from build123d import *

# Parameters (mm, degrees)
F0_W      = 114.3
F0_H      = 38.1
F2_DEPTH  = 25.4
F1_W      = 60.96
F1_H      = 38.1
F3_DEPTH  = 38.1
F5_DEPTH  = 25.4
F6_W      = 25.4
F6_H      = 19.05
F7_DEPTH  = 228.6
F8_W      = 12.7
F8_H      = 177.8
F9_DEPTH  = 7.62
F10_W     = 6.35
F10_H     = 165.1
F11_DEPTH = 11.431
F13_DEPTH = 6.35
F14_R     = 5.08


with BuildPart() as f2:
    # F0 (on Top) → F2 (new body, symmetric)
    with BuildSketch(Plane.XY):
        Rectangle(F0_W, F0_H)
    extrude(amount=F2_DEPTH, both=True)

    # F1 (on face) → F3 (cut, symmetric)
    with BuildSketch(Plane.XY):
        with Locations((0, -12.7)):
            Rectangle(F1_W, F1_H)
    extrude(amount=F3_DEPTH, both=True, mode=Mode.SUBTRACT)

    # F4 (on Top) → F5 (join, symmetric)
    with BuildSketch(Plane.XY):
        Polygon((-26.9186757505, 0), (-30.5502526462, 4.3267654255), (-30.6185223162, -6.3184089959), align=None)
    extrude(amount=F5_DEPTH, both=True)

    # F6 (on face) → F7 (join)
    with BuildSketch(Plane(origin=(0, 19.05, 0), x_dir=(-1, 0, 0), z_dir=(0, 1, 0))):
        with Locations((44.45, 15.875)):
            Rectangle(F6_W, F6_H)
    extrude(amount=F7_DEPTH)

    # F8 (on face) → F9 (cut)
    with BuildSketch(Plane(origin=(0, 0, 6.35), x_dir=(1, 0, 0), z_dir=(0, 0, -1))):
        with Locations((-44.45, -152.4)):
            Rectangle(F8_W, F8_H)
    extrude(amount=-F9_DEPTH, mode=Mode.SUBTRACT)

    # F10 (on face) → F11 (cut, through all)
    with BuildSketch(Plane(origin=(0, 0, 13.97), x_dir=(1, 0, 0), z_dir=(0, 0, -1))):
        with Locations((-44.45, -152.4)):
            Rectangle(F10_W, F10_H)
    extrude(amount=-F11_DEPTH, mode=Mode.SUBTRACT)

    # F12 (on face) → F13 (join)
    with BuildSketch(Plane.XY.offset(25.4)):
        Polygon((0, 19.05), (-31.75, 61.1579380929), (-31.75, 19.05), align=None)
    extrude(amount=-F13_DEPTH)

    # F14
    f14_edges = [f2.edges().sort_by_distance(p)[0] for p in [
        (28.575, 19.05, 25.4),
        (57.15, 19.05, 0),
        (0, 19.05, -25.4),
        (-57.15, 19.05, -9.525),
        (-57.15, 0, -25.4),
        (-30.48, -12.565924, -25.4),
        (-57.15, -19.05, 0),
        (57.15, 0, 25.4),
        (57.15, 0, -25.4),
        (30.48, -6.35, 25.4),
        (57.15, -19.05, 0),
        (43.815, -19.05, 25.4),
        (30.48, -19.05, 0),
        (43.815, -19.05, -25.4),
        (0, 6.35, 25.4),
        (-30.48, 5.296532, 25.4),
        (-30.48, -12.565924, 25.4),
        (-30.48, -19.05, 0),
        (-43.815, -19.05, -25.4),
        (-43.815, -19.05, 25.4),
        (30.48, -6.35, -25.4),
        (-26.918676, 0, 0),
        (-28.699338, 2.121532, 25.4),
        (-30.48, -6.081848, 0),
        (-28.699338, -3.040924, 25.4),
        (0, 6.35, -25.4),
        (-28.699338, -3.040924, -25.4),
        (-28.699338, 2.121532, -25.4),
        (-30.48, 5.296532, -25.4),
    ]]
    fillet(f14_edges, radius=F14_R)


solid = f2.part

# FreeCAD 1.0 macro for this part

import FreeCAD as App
import Part
import Sketcher
from FreeCAD import Vector
Q = App.Units.Quantity


def edges_at(feature, points):
    """Names of the edges that pass closest to the given points."""
    edges = feature.Shape.Edges
    near = lambda p: min(range(len(edges)), key=lambda i: edges[i].distToShape(Part.Vertex(*p))[0])
    return sorted({f"Edge{near(p) + 1}" for p in points})

doc = App.newDocument("Part")
body = doc.addObject("PartDesign::Body", "Body")

# Sketch on XY plane
sketch1 = doc.addObject("Sketcher::SketchObject", "Sketch")
body.addObject(sketch1)
sketch1.AttachmentSupport = (doc.XY_Plane, [""])
sketch1.MapMode = "FlatFace"
sketch1.addGeometry([
    Part.LineSegment(Vector(-57, 19, 0), Vector(-57, -19, 0)),
    Part.LineSegment(Vector(-57, -19, 0), Vector(57, -19, 0)),
    Part.LineSegment(Vector(57, -19, 0), Vector(57, 19, 0)),
    Part.LineSegment(Vector(57, 19, 0), Vector(-57, 19, 0)),
], False)
sketch1.addConstraint([
    Sketcher.Constraint("Coincident", 0, 2, 1, 1),
    Sketcher.Constraint("Coincident", 1, 2, 2, 1),
    Sketcher.Constraint("Coincident", 2, 2, 3, 1),
    Sketcher.Constraint("Coincident", 3, 2, 0, 1),
    Sketcher.Constraint("Vertical", 0),
    Sketcher.Constraint("Horizontal", 1),
    Sketcher.Constraint("Vertical", 2),
    Sketcher.Constraint("Horizontal", 3),
    Sketcher.Constraint("Symmetric", 0, 2, 2, 2, -1, 1),
    Sketcher.Constraint("DistanceX", 1, 1, 1, 2, Q("4.5 in")),
    Sketcher.Constraint("DistanceY", 0, 2, 0, 1, Q("1.5 in")),
])
pad1 = doc.addObject("PartDesign::Pad", "Pad")
body.addObject(pad1)
pad1.Profile = sketch1
pad1.Length = Q("2 in")
pad1.Midplane = True

# Sketch on XY plane
sketch2 = doc.addObject("Sketcher::SketchObject", "Sketch001")
body.addObject(sketch2)
sketch2.AttachmentSupport = (doc.XY_Plane, [""])
sketch2.MapMode = "FlatFace"
sketch2.addGeometry([
    Part.LineSegment(Vector(-30, 6, 0), Vector(-30, -32, 0)),
    Part.LineSegment(Vector(-30, -32, 0), Vector(30, -32, 0)),
    Part.LineSegment(Vector(30, -32, 0), Vector(30, 6, 0)),
    Part.LineSegment(Vector(30, 6, 0), Vector(-30, 6, 0)),
], False)
sketch2.addConstraint([
    Sketcher.Constraint("Coincident", 0, 2, 1, 1),
    Sketcher.Constraint("Coincident", 1, 2, 2, 1),
    Sketcher.Constraint("Coincident", 2, 2, 3, 1),
    Sketcher.Constraint("Coincident", 3, 2, 0, 1),
    Sketcher.Constraint("Vertical", 0),
    Sketcher.Constraint("Horizontal", 1),
    Sketcher.Constraint("Vertical", 2),
    Sketcher.Constraint("Horizontal", 3),
    Sketcher.Constraint("DistanceX", 1, 1, 1, 2, Q("2.4 in")),
    Sketcher.Constraint("DistanceY", 0, 2, 0, 1, Q("1.5 in")),
    Sketcher.Constraint("DistanceX", 0, 2, -1, 1, Q("1.2 in")),
    Sketcher.Constraint("DistanceY", 0, 2, -1, 1, Q("1.25 in")),
])
pocket1 = doc.addObject("PartDesign::Pocket", "Pocket")
body.addObject(pocket1)
pocket1.Profile = sketch2
pocket1.Length = Q("3 in")
pocket1.Midplane = True

# Sketch on XY plane
sketch3 = doc.addObject("Sketcher::SketchObject", "Sketch002")
body.addObject(sketch3)
sketch3.AttachmentSupport = (doc.XY_Plane, [""])
sketch3.MapMode = "FlatFace"
sketch3.addGeometry([
    Part.LineSegment(Vector(-27, 0, 0), Vector(-31, 4, 0)),
    Part.LineSegment(Vector(-31, 4, 0), Vector(-31, -6, 0)),
    Part.LineSegment(Vector(-31, -6, 0), Vector(-27, 0, 0)),
], False)
sketch3.addConstraint([
    Sketcher.Constraint("Coincident", 0, 2, 1, 1),
    Sketcher.Constraint("Coincident", 1, 2, 2, 1),
    Sketcher.Constraint("Coincident", 2, 2, 0, 1),
    Sketcher.Constraint("PointOnObject", 2, 2, -1),
    Sketcher.Constraint("DistanceY", 1, 2, -1, 1, Q("6.318409 mm")),
    Sketcher.Constraint("DistanceX", 1, 2, 0, 2, Q("0.06827 mm")),
    Sketcher.Constraint("Distance", 0, Q("5.648827 mm")),
    Sketcher.Constraint("Distance", 1, Q("10.645393 mm")),
    Sketcher.Constraint("DistanceX", 0, 2, -1, 1, Q("30.550253 mm")),
])
pad2 = doc.addObject("PartDesign::Pad", "Pad001")
body.addObject(pad2)
pad2.Profile = sketch3
pad2.Length = Q("2 in")
pad2.Midplane = True

# Sketch on XZ plane
sketch4 = doc.addObject("Sketcher::SketchObject", "Sketch003")
body.addObject(sketch4)
sketch4.AttachmentSupport = (doc.XZ_Plane, [""])
sketch4.MapMode = "FlatFace"
sketch4.AttachmentOffset = App.Placement(Vector(0, 0, -0.75 * 25.4), App.Rotation())
sketch4.addGeometry([
    Part.LineSegment(Vector(-32, 25, 0), Vector(-32, 6, 0)),
    Part.LineSegment(Vector(-32, 6, 0), Vector(-57, 6, 0)),
    Part.LineSegment(Vector(-57, 6, 0), Vector(-57, 25, 0)),
    Part.LineSegment(Vector(-57, 25, 0), Vector(-32, 25, 0)),
], False)
sketch4.addConstraint([
    Sketcher.Constraint("Coincident", 0, 2, 1, 1),
    Sketcher.Constraint("Coincident", 1, 2, 2, 1),
    Sketcher.Constraint("Coincident", 2, 2, 3, 1),
    Sketcher.Constraint("Coincident", 3, 2, 0, 1),
    Sketcher.Constraint("Vertical", 0),
    Sketcher.Constraint("Horizontal", 1),
    Sketcher.Constraint("Vertical", 2),
    Sketcher.Constraint("Horizontal", 3),
    Sketcher.Constraint("DistanceX", 1, 2, 1, 1, Q("1 in")),
    Sketcher.Constraint("DistanceY", -1, 1, 2, 2, Q("1 in")),
    Sketcher.Constraint("DistanceY", 0, 2, 0, 1, Q("0.75 in")),
    Sketcher.Constraint("DistanceX", 0, 2, -1, 1, Q("1.25 in")),
])
pad3 = doc.addObject("PartDesign::Pad", "Pad002")
body.addObject(pad3)
pad3.Profile = sketch4
pad3.Length = Q("9 in")
pad3.Reversed = True

# Sketch on XY plane
sketch5 = doc.addObject("Sketcher::SketchObject", "Sketch004")
body.addObject(sketch5)
sketch5.AttachmentSupport = (doc.XY_Plane, [""])
sketch5.MapMode = "FlatFace"
sketch5.AttachmentOffset = App.Placement(Vector(0, 0, 0.25 * 25.4), App.Rotation())
sketch5.addGeometry([
    Part.LineSegment(Vector(-51, 64, 0), Vector(-51, 241, 0)),
    Part.LineSegment(Vector(-51, 241, 0), Vector(-38, 241, 0)),
    Part.LineSegment(Vector(-38, 241, 0), Vector(-38, 64, 0)),
    Part.LineSegment(Vector(-38, 64, 0), Vector(-51, 64, 0)),
], False)
sketch5.addConstraint([
    Sketcher.Constraint("Coincident", 0, 2, 1, 1),
    Sketcher.Constraint("Coincident", 1, 2, 2, 1),
    Sketcher.Constraint("Coincident", 2, 2, 3, 1),
    Sketcher.Constraint("Coincident", 3, 2, 0, 1),
    Sketcher.Constraint("Vertical", 0),
    Sketcher.Constraint("Horizontal", 1),
    Sketcher.Constraint("Vertical", 2),
    Sketcher.Constraint("Horizontal", 3),
    Sketcher.Constraint("DistanceY", 0, 1, 0, 2, Q("7 in")),
    Sketcher.Constraint("DistanceX", 1, 1, 1, 2, Q("0.5 in")),
    Sketcher.Constraint("DistanceX", 0, 2, -1, 1, Q("2 in")),
    Sketcher.Constraint("DistanceY", -1, 1, 0, 2, Q("9.5 in")),
])
pocket2 = doc.addObject("PartDesign::Pocket", "Pocket001")
body.addObject(pocket2)
pocket2.Profile = sketch5
pocket2.Length = Q("0.3 in")
pocket2.Reversed = True

# Sketch on XY plane
sketch6 = doc.addObject("Sketcher::SketchObject", "Sketch005")
body.addObject(sketch6)
sketch6.AttachmentSupport = (doc.XY_Plane, [""])
sketch6.MapMode = "FlatFace"
sketch6.AttachmentOffset = App.Placement(Vector(0, 0, 0.55 * 25.4), App.Rotation())
sketch6.addGeometry([
    Part.LineSegment(Vector(-48, 70, 0), Vector(-48, 235, 0)),
    Part.LineSegment(Vector(-48, 235, 0), Vector(-41, 235, 0)),
    Part.LineSegment(Vector(-41, 235, 0), Vector(-41, 70, 0)),
    Part.LineSegment(Vector(-41, 70, 0), Vector(-48, 70, 0)),
], False)
sketch6.addConstraint([
    Sketcher.Constraint("Coincident", 0, 2, 1, 1),
    Sketcher.Constraint("Coincident", 1, 2, 2, 1),
    Sketcher.Constraint("Coincident", 2, 2, 3, 1),
    Sketcher.Constraint("Coincident", 3, 2, 0, 1),
    Sketcher.Constraint("Vertical", 0),
    Sketcher.Constraint("Horizontal", 1),
    Sketcher.Constraint("Vertical", 2),
    Sketcher.Constraint("Horizontal", 3),
    Sketcher.Constraint("DistanceY", 0, 1, 0, 2, Q("6.5 in")),
    Sketcher.Constraint("DistanceX", 1, 1, 1, 2, Q("0.25 in")),
    Sketcher.Constraint("DistanceY", -1, 1, 0, 2, Q("9.25 in")),
    Sketcher.Constraint("DistanceX", 0, 2, -1, 1, Q("1.875 in")),
])
pocket3 = doc.addObject("PartDesign::Pocket", "Pocket002")
body.addObject(pocket3)
pocket3.Profile = sketch6
pocket3.Type = "ThroughAll"
pocket3.Reversed = True

# Sketch on XY plane
sketch7 = doc.addObject("Sketcher::SketchObject", "Sketch006")
body.addObject(sketch7)
sketch7.AttachmentSupport = (doc.XY_Plane, [""])
sketch7.MapMode = "FlatFace"
sketch7.AttachmentOffset = App.Placement(Vector(0, 0, 1 * 25.4), App.Rotation())
sketch7.addGeometry([
    Part.LineSegment(Vector(0, 19, 0), Vector(-32, 61, 0)),
    Part.LineSegment(Vector(-32, 61, 0), Vector(-32, 19, 0)),
    Part.LineSegment(Vector(-32, 19, 0), Vector(0, 19, 0)),
], False)
sketch7.addConstraint([
    Sketcher.Constraint("Coincident", 0, 2, 1, 1),
    Sketcher.Constraint("Coincident", 1, 2, 2, 1),
    Sketcher.Constraint("Coincident", 2, 2, 0, 1),
    Sketcher.Constraint("Vertical", 1),
    Sketcher.Constraint("Horizontal", 2),
    Sketcher.Constraint("PointOnObject", 2, 2, -2),
    Sketcher.Constraint("DistanceX", 2, 1, 2, 2, Q("1.25 in")),
    Sketcher.Constraint("DistanceY", -1, 1, 1, 2, Q("0.75 in")),
    Sketcher.Constraint("DistanceY", 1, 2, 1, 1, Q("42.107938 mm")),
])
pad4 = doc.addObject("PartDesign::Pad", "Pad003")
body.addObject(pad4)
pad4.Profile = sketch7
pad4.Length = Q("0.25 in")
pad4.Reversed = True
doc.recompute()

fillet = doc.addObject("PartDesign::Fillet", "Fillet")
body.addObject(fillet)
fillet.Base = (pad4, edges_at(pad4, [
    (28.575, 19.05, 25.4),
    (57.15, 19.05, 0),
    (0, 19.05, -25.4),
    (-57.15, 19.05, -9.525),
    (-57.15, 0, -25.4),
    (-30.48, -12.566, -25.4),
    (-57.15, -19.05, 0),
    (57.15, 0, 25.4),
    (57.15, 0, -25.4),
    (30.48, -6.35, 25.4),
    (57.15, -19.05, 0),
    (43.815, -19.05, 25.4),
    (30.48, -19.05, 0),
    (43.815, -19.05, -25.4),
    (0, 6.35, 25.4),
    (-30.48, 5.297, 25.4),
    (-30.48, -12.566, 25.4),
    (-30.48, -19.05, 0),
    (-43.815, -19.05, -25.4),
    (-43.815, -19.05, 25.4),
    (30.48, -6.35, -25.4),
    (-26.919, 0, 0),
    (-28.699, 2.122, 25.4),
    (-30.48, -6.082, 0),
    (-28.699, -3.041, 25.4),
    (0, 6.35, -25.4),
    (-28.699, -3.041, -25.4),
    (-28.699, 2.122, -25.4),
    (-30.48, 5.297, -25.4),
]))
fillet.Radius = Q("0.2 in")

doc.recompute()
